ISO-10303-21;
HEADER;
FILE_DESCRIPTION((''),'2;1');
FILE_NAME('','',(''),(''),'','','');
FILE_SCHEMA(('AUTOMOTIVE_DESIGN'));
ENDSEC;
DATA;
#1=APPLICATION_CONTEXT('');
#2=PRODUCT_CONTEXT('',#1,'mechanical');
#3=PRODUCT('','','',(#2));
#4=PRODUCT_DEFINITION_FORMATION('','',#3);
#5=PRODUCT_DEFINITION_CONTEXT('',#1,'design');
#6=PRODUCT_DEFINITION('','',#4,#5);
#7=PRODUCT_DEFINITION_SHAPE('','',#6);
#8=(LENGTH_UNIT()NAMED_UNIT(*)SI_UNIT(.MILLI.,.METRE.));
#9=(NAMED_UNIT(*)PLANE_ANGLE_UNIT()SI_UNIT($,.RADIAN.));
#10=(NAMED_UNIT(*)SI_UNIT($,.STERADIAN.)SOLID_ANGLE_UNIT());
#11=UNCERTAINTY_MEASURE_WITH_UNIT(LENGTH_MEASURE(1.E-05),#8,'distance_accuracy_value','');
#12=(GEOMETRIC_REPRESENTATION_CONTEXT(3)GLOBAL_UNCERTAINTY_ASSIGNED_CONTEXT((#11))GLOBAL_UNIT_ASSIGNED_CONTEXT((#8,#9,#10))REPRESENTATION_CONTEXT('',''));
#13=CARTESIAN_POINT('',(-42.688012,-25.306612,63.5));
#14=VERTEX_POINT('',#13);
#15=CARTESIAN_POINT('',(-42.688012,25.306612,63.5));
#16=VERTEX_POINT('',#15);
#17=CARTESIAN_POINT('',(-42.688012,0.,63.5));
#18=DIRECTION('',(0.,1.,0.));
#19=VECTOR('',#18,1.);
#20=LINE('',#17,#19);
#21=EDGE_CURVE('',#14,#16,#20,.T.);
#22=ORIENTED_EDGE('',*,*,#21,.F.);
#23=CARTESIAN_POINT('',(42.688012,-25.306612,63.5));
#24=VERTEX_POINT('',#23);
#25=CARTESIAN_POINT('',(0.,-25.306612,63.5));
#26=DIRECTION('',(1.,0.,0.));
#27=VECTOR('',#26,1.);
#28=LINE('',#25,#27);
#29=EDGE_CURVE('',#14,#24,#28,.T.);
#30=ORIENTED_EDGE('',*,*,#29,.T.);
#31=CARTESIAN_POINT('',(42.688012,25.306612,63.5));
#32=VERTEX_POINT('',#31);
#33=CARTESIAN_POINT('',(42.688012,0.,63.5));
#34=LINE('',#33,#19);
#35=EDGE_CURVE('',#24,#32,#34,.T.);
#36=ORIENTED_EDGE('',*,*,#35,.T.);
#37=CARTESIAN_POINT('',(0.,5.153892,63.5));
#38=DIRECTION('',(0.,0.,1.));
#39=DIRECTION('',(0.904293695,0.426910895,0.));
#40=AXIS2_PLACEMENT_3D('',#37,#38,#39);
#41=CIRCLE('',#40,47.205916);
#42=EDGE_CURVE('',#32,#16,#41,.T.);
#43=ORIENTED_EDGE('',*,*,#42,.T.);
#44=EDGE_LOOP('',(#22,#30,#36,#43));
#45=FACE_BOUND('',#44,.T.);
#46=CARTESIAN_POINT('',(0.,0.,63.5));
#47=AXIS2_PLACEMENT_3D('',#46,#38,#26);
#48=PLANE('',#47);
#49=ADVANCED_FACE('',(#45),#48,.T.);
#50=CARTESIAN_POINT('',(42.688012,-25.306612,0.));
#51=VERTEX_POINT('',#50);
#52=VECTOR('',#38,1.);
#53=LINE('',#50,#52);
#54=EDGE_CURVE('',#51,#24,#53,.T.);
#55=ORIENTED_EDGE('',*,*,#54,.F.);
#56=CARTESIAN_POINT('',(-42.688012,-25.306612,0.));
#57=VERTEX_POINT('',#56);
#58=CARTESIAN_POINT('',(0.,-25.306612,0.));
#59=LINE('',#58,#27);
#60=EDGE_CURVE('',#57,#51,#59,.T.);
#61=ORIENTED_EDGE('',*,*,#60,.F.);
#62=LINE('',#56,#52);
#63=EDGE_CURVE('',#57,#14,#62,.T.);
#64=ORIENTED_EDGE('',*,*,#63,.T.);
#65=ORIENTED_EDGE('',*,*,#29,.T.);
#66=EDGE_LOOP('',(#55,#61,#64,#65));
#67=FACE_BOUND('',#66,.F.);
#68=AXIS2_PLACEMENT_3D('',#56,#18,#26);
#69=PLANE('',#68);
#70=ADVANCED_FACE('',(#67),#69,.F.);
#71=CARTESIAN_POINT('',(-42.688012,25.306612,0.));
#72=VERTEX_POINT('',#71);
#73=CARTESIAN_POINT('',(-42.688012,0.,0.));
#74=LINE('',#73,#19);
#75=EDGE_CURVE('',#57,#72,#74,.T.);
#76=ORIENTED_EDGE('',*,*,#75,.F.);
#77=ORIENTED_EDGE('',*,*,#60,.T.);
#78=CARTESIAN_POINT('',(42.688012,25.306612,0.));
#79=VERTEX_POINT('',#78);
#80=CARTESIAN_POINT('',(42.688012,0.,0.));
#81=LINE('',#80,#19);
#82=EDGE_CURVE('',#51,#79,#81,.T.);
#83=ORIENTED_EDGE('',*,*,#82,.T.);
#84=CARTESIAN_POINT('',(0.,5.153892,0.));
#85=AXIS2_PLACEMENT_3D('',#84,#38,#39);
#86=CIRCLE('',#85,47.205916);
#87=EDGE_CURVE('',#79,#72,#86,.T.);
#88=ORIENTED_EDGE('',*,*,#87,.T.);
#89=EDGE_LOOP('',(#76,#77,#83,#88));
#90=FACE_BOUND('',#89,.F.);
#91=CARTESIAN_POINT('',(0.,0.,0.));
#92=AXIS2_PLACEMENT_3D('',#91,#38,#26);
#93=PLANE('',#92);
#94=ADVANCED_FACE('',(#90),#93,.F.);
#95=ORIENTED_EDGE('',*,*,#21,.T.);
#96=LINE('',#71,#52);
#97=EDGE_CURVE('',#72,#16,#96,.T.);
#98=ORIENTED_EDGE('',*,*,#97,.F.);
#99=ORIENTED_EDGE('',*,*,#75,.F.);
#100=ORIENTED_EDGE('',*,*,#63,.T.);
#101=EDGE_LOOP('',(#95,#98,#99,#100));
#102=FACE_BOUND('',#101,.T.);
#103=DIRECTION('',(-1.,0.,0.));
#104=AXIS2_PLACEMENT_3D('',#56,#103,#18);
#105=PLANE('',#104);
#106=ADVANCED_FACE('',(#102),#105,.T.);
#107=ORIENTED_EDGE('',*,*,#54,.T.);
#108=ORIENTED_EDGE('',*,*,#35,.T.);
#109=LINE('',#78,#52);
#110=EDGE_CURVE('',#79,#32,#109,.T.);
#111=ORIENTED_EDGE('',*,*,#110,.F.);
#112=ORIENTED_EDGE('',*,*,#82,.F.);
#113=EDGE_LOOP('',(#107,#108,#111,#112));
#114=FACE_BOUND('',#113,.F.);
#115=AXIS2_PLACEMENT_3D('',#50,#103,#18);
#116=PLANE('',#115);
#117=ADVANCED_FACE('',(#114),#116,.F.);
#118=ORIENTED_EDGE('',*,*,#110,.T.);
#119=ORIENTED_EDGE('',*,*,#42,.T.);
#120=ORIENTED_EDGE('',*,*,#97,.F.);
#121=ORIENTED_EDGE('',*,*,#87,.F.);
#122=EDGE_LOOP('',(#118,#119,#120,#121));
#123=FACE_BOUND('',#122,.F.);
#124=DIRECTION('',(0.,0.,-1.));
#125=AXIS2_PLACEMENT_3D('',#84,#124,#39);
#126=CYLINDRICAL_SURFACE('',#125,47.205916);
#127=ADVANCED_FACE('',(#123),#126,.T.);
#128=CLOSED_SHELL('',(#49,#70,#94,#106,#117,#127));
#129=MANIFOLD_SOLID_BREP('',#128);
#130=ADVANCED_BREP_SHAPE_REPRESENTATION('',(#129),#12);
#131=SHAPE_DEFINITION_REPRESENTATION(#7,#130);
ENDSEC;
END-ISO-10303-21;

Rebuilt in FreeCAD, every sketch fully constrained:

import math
import FreeCAD as App
import Part
import Sketcher
from FreeCAD import Vector
Q = App.Units.Quantity

doc = App.newDocument("Part")
body = doc.addObject("PartDesign::Body", "Body")

# Sketch on XY plane
sketch1 = body.newObject("Sketcher::SketchObject", "Sketch")
sketch1.AttachmentSupport = (doc.getObject("XY_Plane"), [""])
sketch1.MapMode = "FlatFace"
sketch1.addGeometry([
    Part.LineSegment(Vector(-42.688012, 25.306612, 0), Vector(-42.688012, -25.306612, 0)),
    Part.LineSegment(Vector(-42.688012, -25.306612, 0), Vector(42.688012, -25.306612, 0)),
    Part.LineSegment(Vector(42.688012, -25.306612, 0), Vector(42.688012, 25.306612, 0)),
    Part.ArcOfCircle(Part.Circle(Vector(0, 5.153892, 0), Vector(0, 0, 1), 47.205916), math.radians(25.271677), math.radians(154.728323)),
], False)
sketch1.addConstraint([
    Sketcher.Constraint("Coincident", 0, 2, 1, 1),
    Sketcher.Constraint("Coincident", 1, 2, 2, 1),
    Sketcher.Constraint("Coincident", 2, 2, 3, 1),
    Sketcher.Constraint("Coincident", 3, 2, 0, 1),
    Sketcher.Constraint("Vertical", 0),
    Sketcher.Constraint("Horizontal", 1),
    Sketcher.Constraint("Vertical", 2),
    Sketcher.Constraint("Symmetric", 0, 2, 2, 2, -1, 1),
    Sketcher.Constraint("PointOnObject", 3, 3, -2),
    Sketcher.Constraint("Radius", 3, 47.205916),
    Sketcher.Constraint("DistanceX", 1, 1, 1, 2, 85.376024),
    Sketcher.Constraint("DistanceY", 0, 2, 0, 1, 50.613224),
])
pad1 = body.newObject("PartDesign::Pad", "Pad")
pad1.Profile = sketch1
pad1.Length = Q("2.5 in")

doc.recompute()
